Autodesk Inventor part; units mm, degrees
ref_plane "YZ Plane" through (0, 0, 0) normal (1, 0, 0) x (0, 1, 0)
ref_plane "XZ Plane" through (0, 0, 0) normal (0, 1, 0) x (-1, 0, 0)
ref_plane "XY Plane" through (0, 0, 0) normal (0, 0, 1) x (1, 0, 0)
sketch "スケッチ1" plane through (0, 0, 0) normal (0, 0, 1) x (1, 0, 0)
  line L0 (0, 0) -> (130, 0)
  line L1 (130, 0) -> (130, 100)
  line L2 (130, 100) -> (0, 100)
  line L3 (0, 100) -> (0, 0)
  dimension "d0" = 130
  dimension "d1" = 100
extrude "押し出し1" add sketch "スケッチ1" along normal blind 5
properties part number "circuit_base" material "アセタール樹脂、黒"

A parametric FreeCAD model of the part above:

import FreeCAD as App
import Part
import Sketcher
Q = App.Units.Quantity


def add_polygon(sketch, points):
    """Adds a closed chain of lines whose ends are joined by coincident constraints."""
    first, n = sketch.GeometryCount, len(points)
    for a, b in zip(points, points[1:] + points[:1]):
        sketch.addGeometry(Part.LineSegment(App.Vector(*a, 0), App.Vector(*b, 0)), False)
    for i in range(n):
        sketch.addConstraint(Sketcher.Constraint("Coincident", first + i, 2, first + (i + 1) % n, 1))

doc = App.newDocument("Part")
body = doc.addObject("PartDesign::Body", "Body")

sketch1 = doc.addObject("Sketcher::SketchObject", "Sketch")
body.addObject(sketch1)
sketch1.AttachmentSupport = (doc.XY_Plane, [""])
sketch1.MapMode = "FlatFace"
add_polygon(sketch1, [(0, 100), (0, 0), (130, 0), (130, 100)])
sketch1.addConstraint([
    Sketcher.Constraint("Vertical", 0),
    Sketcher.Constraint("Horizontal", 1),
    Sketcher.Constraint("Vertical", 2),
    Sketcher.Constraint("Horizontal", 3),
    Sketcher.Constraint("Coincident", 0, 2, -1, 1),
    Sketcher.Constraint("DistanceX", 1, 1, 1, 2, Q("130 mm")),
    Sketcher.Constraint("DistanceY", 0, 2, 0, 1, Q("100 mm")),
])
pad1 = doc.addObject("PartDesign::Pad", "Pad")
body.addObject(pad1)
pad1.Profile = sketch1
pad1.Length = 5

doc.recompute()
